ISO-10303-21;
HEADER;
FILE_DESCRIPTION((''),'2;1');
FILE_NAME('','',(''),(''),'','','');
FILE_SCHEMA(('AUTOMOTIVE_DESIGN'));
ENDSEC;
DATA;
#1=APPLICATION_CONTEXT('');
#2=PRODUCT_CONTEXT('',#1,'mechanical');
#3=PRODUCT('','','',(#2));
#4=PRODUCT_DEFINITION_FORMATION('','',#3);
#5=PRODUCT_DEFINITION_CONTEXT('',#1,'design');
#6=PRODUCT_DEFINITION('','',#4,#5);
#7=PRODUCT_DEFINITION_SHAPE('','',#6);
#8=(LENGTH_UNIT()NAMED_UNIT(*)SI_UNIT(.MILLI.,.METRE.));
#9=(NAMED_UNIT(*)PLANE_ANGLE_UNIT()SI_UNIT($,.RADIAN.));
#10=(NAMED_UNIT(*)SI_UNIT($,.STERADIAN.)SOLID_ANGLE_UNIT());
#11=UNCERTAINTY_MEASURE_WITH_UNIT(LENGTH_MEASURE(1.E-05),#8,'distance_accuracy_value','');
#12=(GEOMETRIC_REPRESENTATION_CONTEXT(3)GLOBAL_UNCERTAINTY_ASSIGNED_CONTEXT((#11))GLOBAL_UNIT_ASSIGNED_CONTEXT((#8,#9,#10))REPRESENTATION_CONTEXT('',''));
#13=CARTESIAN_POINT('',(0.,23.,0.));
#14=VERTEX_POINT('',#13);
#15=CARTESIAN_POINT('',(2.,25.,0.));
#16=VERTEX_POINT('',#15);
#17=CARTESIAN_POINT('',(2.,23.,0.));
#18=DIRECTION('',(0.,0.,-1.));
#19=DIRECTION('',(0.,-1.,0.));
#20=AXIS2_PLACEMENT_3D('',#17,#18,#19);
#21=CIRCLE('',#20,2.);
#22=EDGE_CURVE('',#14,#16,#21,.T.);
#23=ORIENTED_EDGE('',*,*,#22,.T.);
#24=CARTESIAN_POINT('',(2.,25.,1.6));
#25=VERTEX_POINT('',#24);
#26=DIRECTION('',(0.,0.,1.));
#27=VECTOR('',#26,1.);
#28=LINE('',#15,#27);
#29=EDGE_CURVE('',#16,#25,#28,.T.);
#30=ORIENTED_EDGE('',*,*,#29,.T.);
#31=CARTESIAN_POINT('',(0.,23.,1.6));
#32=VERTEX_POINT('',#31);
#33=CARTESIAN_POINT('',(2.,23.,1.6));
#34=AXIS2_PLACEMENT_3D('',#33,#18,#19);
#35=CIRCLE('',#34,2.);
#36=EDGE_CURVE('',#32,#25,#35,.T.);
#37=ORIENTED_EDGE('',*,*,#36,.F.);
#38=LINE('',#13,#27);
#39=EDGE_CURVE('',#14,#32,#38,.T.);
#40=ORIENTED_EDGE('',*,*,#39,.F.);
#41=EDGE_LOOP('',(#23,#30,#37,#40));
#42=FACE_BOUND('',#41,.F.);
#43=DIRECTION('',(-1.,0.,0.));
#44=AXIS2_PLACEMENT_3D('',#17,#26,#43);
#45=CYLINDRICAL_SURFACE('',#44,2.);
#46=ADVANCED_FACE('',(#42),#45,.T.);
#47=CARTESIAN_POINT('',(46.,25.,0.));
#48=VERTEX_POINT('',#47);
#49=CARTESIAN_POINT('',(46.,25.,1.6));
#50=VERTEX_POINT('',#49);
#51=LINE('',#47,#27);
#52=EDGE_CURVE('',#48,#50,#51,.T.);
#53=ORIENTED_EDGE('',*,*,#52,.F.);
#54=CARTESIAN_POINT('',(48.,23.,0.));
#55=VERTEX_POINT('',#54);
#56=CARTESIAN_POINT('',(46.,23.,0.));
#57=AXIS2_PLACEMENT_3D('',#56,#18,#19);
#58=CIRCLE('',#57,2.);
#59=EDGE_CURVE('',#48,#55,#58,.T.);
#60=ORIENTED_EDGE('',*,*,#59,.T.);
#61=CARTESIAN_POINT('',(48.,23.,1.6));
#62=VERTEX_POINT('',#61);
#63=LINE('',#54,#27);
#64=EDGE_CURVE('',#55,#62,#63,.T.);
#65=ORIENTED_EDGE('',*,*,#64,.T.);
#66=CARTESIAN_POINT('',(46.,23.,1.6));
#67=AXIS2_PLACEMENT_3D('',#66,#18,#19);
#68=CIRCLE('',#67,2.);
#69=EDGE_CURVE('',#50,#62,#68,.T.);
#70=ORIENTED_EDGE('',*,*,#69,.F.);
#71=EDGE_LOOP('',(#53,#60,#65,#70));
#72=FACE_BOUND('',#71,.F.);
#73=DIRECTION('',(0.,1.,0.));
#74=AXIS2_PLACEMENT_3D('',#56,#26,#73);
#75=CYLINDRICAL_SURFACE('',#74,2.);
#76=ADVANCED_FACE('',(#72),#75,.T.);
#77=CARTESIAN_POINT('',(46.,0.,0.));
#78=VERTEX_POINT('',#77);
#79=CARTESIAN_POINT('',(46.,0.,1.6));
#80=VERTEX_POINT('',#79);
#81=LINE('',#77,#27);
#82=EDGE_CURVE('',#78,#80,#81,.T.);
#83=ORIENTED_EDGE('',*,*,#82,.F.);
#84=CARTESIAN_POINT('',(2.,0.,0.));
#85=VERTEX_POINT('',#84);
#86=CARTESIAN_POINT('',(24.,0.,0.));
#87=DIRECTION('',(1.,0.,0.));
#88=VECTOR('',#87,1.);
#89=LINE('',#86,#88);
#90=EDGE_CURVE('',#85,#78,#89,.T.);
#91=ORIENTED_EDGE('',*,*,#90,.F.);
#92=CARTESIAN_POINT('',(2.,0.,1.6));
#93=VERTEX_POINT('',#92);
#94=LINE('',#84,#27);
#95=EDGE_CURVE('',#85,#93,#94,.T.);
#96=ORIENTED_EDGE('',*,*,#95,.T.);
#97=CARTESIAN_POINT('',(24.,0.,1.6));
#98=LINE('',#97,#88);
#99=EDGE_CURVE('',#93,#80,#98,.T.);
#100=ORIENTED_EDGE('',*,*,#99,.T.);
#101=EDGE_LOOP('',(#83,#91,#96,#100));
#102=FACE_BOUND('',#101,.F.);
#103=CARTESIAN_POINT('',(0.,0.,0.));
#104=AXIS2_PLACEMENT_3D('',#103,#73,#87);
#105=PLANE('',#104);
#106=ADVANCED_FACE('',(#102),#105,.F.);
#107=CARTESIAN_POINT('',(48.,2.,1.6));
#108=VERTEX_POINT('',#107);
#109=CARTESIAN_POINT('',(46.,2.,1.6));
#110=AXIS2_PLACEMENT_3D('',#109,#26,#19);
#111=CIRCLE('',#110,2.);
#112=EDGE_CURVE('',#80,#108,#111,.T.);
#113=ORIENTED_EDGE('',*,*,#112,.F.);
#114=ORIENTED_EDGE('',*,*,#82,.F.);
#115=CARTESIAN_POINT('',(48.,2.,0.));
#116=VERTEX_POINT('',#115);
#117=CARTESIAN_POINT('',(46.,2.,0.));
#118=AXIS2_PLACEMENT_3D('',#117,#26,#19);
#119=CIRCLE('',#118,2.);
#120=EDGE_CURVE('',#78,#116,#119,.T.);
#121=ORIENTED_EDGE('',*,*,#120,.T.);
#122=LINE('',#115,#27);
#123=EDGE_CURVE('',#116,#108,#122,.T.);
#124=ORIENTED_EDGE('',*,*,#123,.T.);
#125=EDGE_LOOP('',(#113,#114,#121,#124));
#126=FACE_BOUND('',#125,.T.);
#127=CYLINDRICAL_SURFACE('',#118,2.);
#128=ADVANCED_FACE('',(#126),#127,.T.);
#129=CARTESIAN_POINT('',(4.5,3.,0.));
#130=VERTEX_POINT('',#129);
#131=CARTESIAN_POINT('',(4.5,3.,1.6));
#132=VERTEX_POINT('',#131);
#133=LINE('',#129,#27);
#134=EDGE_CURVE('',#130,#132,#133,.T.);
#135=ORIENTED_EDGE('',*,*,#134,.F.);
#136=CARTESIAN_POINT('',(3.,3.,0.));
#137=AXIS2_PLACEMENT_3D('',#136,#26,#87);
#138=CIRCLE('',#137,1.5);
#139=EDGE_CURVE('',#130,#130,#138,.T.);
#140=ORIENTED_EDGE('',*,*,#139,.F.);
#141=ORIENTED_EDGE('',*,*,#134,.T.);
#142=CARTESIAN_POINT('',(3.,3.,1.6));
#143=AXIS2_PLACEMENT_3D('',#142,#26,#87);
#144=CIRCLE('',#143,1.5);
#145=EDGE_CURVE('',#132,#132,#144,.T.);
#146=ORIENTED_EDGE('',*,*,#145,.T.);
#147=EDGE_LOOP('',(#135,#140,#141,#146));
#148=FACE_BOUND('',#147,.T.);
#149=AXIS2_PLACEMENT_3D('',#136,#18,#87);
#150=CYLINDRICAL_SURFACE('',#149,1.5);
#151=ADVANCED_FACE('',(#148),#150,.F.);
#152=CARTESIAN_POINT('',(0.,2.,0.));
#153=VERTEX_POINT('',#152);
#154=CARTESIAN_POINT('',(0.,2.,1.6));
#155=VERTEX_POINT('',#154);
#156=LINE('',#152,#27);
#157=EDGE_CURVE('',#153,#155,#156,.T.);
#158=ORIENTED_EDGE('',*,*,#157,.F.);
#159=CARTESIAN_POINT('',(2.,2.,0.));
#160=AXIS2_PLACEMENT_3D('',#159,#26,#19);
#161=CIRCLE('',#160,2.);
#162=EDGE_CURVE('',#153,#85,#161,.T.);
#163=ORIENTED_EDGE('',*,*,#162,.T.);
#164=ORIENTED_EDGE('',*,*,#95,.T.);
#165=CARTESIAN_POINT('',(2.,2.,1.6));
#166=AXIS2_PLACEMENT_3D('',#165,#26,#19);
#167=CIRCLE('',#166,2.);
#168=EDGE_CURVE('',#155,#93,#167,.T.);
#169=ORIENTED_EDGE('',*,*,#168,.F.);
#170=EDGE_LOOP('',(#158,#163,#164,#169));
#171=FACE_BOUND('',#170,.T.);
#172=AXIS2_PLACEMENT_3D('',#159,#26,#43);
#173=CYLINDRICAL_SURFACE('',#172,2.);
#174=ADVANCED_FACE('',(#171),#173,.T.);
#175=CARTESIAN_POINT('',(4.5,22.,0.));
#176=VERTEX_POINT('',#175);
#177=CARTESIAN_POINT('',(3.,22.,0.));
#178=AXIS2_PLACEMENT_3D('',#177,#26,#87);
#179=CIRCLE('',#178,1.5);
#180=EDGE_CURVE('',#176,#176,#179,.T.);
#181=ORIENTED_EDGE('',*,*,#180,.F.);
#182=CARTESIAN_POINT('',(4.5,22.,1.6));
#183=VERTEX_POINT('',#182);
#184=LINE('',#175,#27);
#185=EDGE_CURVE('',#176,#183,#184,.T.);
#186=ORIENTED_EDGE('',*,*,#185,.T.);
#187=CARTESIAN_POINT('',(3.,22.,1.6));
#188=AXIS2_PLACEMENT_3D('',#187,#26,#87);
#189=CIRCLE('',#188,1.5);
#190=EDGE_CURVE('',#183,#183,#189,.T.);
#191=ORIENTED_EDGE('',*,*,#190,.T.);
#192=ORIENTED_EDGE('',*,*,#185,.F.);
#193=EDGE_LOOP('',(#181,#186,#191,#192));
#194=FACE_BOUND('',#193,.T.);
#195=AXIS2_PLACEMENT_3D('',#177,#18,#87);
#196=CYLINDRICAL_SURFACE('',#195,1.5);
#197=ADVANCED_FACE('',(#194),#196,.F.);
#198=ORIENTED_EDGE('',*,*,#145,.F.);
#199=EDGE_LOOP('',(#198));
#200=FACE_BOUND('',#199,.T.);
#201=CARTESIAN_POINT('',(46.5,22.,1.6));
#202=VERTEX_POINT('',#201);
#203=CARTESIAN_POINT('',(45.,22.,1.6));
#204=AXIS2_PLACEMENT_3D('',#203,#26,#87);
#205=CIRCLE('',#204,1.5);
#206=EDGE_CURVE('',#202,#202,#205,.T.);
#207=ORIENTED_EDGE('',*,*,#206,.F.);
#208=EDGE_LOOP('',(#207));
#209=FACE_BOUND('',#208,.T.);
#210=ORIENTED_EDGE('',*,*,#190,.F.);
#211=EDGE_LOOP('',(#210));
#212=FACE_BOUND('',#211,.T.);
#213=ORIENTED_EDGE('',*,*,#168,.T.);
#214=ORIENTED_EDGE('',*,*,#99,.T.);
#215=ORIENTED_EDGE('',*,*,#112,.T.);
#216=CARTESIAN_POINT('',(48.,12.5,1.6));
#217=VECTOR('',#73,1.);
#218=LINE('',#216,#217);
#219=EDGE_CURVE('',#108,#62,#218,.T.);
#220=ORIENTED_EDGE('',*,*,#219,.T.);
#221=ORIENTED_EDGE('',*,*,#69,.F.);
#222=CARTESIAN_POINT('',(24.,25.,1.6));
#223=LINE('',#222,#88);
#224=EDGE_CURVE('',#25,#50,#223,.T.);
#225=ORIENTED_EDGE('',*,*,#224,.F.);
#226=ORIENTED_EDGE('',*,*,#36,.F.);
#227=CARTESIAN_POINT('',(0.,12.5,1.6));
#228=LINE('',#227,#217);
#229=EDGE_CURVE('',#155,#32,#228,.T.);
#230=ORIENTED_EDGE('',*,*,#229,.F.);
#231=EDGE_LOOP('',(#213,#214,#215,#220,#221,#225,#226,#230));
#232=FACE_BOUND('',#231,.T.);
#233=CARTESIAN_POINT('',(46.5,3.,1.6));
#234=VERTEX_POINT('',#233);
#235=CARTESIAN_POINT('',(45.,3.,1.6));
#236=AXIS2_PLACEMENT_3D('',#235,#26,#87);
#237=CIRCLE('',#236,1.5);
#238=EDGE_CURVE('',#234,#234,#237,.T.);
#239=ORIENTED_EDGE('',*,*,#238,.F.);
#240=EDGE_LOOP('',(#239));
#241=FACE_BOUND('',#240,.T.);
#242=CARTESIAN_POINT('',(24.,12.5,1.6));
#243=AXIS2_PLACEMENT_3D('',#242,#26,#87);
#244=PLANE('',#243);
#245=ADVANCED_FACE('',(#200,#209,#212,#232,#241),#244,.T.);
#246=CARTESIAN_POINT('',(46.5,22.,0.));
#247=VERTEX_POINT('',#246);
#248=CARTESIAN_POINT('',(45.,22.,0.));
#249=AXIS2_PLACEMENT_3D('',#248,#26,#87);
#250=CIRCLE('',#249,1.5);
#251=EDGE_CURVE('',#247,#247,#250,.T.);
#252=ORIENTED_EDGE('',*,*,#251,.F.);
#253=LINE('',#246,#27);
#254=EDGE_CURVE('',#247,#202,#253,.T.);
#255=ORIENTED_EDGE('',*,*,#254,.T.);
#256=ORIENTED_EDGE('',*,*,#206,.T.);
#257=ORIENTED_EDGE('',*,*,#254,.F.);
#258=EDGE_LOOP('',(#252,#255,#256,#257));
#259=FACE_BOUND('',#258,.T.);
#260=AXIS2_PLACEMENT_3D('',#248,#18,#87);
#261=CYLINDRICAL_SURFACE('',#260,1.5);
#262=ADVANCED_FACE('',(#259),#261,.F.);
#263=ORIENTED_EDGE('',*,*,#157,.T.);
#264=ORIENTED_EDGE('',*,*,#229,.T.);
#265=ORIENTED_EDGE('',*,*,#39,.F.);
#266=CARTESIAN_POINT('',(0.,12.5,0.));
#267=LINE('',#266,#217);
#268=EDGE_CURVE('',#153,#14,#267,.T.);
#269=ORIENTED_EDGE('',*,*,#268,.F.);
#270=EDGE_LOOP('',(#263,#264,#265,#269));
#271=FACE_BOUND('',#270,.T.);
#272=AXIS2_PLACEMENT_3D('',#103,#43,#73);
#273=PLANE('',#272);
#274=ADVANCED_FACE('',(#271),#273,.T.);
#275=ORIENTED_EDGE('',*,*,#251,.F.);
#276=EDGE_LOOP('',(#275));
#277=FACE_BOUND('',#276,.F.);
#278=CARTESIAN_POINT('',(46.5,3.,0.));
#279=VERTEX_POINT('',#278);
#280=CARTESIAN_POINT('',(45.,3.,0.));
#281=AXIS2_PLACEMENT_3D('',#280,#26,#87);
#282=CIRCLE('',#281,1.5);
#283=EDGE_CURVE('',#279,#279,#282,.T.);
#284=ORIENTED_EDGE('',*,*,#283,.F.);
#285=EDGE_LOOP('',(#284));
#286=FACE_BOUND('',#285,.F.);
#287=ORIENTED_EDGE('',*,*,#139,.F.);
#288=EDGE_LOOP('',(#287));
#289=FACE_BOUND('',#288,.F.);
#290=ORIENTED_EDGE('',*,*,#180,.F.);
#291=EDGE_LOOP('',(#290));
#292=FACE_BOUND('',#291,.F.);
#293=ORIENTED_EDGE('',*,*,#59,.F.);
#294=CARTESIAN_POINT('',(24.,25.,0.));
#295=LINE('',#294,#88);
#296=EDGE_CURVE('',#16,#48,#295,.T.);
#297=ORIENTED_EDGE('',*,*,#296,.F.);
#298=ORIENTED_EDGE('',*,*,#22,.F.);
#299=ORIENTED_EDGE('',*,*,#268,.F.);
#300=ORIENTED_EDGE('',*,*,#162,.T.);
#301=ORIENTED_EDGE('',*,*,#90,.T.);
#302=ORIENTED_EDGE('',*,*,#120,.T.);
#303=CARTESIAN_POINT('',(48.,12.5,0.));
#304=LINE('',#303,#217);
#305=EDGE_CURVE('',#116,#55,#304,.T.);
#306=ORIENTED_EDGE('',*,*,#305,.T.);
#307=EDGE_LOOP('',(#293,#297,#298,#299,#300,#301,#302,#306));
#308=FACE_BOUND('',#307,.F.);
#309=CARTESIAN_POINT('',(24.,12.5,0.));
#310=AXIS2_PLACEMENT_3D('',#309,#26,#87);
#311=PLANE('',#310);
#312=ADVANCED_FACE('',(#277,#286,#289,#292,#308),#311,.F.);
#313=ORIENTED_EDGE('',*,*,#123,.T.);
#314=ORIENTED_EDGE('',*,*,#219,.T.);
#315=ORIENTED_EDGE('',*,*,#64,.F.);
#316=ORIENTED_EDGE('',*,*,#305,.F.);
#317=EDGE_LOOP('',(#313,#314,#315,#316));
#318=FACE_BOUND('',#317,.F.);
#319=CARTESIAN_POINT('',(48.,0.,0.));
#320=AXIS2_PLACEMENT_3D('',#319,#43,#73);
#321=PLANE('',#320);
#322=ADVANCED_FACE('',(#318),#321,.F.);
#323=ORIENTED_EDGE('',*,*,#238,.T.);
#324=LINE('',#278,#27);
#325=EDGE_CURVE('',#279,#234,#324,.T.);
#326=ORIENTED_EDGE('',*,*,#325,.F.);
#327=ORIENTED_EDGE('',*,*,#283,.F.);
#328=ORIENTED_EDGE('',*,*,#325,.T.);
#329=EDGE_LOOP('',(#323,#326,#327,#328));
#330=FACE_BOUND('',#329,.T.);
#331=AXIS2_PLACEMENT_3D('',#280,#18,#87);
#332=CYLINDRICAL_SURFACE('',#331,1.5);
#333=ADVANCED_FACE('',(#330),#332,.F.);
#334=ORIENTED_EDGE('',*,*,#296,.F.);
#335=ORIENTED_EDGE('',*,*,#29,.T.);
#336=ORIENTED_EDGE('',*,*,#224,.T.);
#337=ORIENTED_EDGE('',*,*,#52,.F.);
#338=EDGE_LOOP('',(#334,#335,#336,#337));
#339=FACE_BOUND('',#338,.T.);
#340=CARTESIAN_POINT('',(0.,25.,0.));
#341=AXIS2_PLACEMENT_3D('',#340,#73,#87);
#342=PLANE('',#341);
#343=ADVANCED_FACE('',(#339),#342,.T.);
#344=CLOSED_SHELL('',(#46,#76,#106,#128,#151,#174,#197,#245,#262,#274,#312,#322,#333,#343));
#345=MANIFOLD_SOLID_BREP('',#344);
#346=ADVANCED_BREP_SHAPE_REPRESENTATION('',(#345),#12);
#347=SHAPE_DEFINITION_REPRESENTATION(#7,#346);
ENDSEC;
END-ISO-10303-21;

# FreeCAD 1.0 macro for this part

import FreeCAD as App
import Part
import Sketcher
Q = App.Units.Quantity


def edges_at(feature, points):
    """Names of the edges that pass closest to the given points."""
    edges = feature.Shape.Edges
    near = lambda p: min(range(len(edges)), key=lambda i: edges[i].distToShape(Part.Vertex(*p))[0])
    return sorted({f"Edge{near(p) + 1}" for p in points})

doc = App.newDocument("Part")
params = doc.addObject("Spreadsheet::Sheet", "Params")
for row, (alias, value) in enumerate([
    ("sketch1_diameter", "3 mm"),
    ("sketch1_width", "48 mm"),
    ("sketch1_height", "25 mm"),
    ("pad1_length", "1.6 mm"),
    ("fillet_radius", "2 mm"),
], start=1):
    params.set(f"A{row}", alias)
    params.set(f"B{row}", "=" + value)
    params.setAlias(f"B{row}", alias)

body = doc.addObject("PartDesign::Body", "Body")

# Sketch on XY plane
sketch1 = body.newObject("Sketcher::SketchObject", "Sketch")
sketch1.AttachmentSupport = (doc.getObject("XY_Plane"), [""])
sketch1.MapMode = "FlatFace"
sketch1.addGeometry(Part.LineSegment(App.Vector(0, 25, 0), App.Vector(0, 0, 0)), False)
sketch1.addGeometry(Part.LineSegment(App.Vector(0, 0, 0), App.Vector(48, 0, 0)), False)
sketch1.addGeometry(Part.LineSegment(App.Vector(48, 0, 0), App.Vector(48, 25, 0)), False)
sketch1.addGeometry(Part.LineSegment(App.Vector(48, 25, 0), App.Vector(0, 25, 0)), False)
sketch1.addGeometry(Part.Circle(App.Vector(3, 3, 0), App.Vector(0, 0, 1), 1.5), False)
sketch1.addGeometry(Part.Circle(App.Vector(45, 3, 0), App.Vector(0, 0, 1), 1.5), False)
sketch1.addGeometry(Part.Circle(App.Vector(3, 22, 0), App.Vector(0, 0, 1), 1.5), False)
sketch1.addGeometry(Part.Circle(App.Vector(45, 22, 0), App.Vector(0, 0, 1), 1.5), False)
sketch1.addConstraint(Sketcher.Constraint("Coincident", 0, 2, 1, 1))
sketch1.addConstraint(Sketcher.Constraint("Coincident", 1, 2, 2, 1))
sketch1.addConstraint(Sketcher.Constraint("Coincident", 2, 2, 3, 1))
sketch1.addConstraint(Sketcher.Constraint("Coincident", 3, 2, 0, 1))
sketch1.addConstraint(Sketcher.Constraint("Vertical", 0))
sketch1.addConstraint(Sketcher.Constraint("Horizontal", 1))
sketch1.addConstraint(Sketcher.Constraint("Vertical", 2))
sketch1.addConstraint(Sketcher.Constraint("Horizontal", 3))
sketch1.addConstraint(Sketcher.Constraint("Coincident", 0, 2, -1, 1))
sketch1.addConstraint(Sketcher.Constraint("Equal", 4, 5))
sketch1.addConstraint(Sketcher.Constraint("Equal", 5, 6))
sketch1.addConstraint(Sketcher.Constraint("Equal", 6, 7))
sketch1.addConstraint(Sketcher.Constraint("Horizontal", 4, 3, 5, 3))
sketch1.addConstraint(Sketcher.Constraint("Horizontal", 6, 3, 7, 3))
sketch1.addConstraint(Sketcher.Constraint("Vertical", 4, 3, 6, 3))
sketch1.addConstraint(Sketcher.Constraint("Vertical", 5, 3, 7, 3))
sketch1.addConstraint(Sketcher.Constraint("Diameter", 4, Q("3 mm")))
sketch1.addConstraint(Sketcher.Constraint("DistanceX", 1, 1, 1, 2, Q("48 mm")))
sketch1.addConstraint(Sketcher.Constraint("DistanceY", 0, 2, 0, 1, Q("25 mm")))
sketch1.addConstraint(Sketcher.Constraint("DistanceX", -1, 1, 4, 3, Q("3 mm")))
sketch1.addConstraint(Sketcher.Constraint("DistanceY", -1, 1, 4, 3, Q("3 mm")))
sketch1.addConstraint(Sketcher.Constraint("DistanceX", -1, 1, 5, 3, Q("45 mm")))
sketch1.addConstraint(Sketcher.Constraint("DistanceY", -1, 1, 6, 3, Q("22 mm")))
sketch1.setExpression("Constraints[16]", "Params.sketch1_diameter")
sketch1.setExpression("Constraints[17]", "Params.sketch1_width")
sketch1.setExpression("Constraints[18]", "Params.sketch1_height")
pad1 = body.newObject("PartDesign::Pad", "Pad")
pad1.Profile = sketch1
pad1.setExpression("Length", "Params.pad1_length")
doc.recompute()

fillet = body.newObject("PartDesign::Fillet", "Fillet")
fillet.Base = (pad1, edges_at(pad1, [
    (48, 0, 0.8),
    (48, 25, 0.8),
    (0, 25, 0.8),
    (0, 0, 0.8),
]))
fillet.setExpression("Radius", "Params.fillet_radius")

doc.recompute()
